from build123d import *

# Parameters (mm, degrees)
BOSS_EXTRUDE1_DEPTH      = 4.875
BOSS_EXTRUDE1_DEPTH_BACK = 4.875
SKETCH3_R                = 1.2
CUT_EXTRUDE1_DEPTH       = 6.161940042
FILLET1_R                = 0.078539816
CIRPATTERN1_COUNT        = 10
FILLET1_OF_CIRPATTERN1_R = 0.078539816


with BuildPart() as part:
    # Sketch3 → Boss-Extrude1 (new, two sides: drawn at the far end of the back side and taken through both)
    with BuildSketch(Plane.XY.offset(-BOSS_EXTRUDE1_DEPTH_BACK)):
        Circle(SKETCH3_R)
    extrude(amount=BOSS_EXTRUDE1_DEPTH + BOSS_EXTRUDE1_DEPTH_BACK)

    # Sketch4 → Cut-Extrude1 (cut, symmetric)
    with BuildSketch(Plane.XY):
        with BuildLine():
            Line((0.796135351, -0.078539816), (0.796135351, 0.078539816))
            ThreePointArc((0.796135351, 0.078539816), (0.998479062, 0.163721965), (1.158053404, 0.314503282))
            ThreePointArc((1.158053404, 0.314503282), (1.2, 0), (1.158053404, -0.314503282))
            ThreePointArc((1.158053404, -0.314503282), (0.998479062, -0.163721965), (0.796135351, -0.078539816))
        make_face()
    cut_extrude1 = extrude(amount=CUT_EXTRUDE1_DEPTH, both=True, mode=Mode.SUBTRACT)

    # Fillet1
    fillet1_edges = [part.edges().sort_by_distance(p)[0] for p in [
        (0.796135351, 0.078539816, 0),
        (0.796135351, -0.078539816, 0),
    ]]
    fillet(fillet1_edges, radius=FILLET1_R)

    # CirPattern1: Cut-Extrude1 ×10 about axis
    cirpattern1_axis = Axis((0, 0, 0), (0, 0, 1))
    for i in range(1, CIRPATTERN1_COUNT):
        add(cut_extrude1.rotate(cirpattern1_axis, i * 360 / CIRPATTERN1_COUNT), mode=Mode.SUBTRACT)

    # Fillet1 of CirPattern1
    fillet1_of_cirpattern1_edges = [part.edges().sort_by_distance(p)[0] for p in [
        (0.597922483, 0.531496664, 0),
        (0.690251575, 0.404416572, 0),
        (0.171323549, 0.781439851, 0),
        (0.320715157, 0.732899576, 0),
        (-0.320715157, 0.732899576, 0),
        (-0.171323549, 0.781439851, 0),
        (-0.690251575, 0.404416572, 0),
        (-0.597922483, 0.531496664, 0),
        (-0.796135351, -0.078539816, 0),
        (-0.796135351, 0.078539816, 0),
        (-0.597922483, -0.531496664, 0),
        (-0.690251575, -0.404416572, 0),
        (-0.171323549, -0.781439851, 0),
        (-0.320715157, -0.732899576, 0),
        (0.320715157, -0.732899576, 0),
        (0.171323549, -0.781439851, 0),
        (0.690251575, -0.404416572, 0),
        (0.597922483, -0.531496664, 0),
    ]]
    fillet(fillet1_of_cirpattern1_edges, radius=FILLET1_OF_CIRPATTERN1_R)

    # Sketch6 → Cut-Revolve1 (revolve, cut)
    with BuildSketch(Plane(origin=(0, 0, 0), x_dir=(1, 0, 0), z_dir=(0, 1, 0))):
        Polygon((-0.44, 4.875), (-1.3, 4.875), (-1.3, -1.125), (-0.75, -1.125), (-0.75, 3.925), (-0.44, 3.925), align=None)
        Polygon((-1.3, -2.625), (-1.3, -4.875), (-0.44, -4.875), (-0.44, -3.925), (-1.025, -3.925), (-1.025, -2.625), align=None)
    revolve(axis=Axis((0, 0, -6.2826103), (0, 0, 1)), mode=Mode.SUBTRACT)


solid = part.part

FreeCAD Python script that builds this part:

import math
import FreeCAD as App
import Part
import Sketcher
from FreeCAD import Vector


def edges_at(feature, points):
    """Names of the edges that pass closest to the given points."""
    edges = feature.Shape.Edges
    near = lambda p: min(range(len(edges)), key=lambda i: edges[i].distToShape(Part.Vertex(*p))[0])
    return sorted({f"Edge{near(p) + 1}" for p in points})

doc = App.newDocument("Part")
body = doc.addObject("PartDesign::Body", "Body")

# Sketch on XY plane
sketch1 = body.newObject("Sketcher::SketchObject", "Sketch")
sketch1.AttachmentSupport = (doc.getObject("XY_Plane"), [""])
sketch1.MapMode = "FlatFace"
sketch1.addGeometry(Part.Circle(Vector(0, 0, 0), Vector(0, 0, 1), 1.2), False)
sketch1.addConstraint([
    Sketcher.Constraint("Coincident", 0, 3, -1, 1),
    Sketcher.Constraint("Diameter", 0, 2.4),
])
pad1 = body.newObject("PartDesign::Pad", "Pad")
pad1.Profile = sketch1
pad1.Type = "TwoLengths"
pad1.Length = 4.875
pad1.Length2 = 4.875

# Sketch on XY plane
sketch2 = body.newObject("Sketcher::SketchObject", "Sketch001")
sketch2.AttachmentSupport = (doc.getObject("XY_Plane"), [""])
sketch2.MapMode = "FlatFace"
sketch2.addGeometry([
    Part.LineSegment(Vector(0.8, 0.08, 0), Vector(0.8, -0.08, 0)),
    Part.ArcOfCircle(Part.Circle(Vector(0.66, -0.68, 0), Vector(0, 0, 1), 0.62), math.radians(36), math.radians(77)),
    Part.ArcOfCircle(Part.Circle(Vector(0, 0, 0), Vector(0, 0, 1), 1.2), math.radians(-15), math.radians(15)),
    Part.ArcOfCircle(Part.Circle(Vector(0.66, 0.68, 0), Vector(0, 0, 1), 0.62), math.radians(-77), math.radians(-36)),
], False)
sketch2.addConstraint([
    Sketcher.Constraint("Coincident", 0, 2, 1, 2),
    Sketcher.Constraint("Coincident", 1, 1, 2, 1),
    Sketcher.Constraint("Coincident", 2, 2, 3, 2),
    Sketcher.Constraint("Coincident", 3, 1, 0, 1),
    Sketcher.Constraint("Vertical", 0),
    Sketcher.Constraint("Coincident", 2, 3, -1, 1),
    Sketcher.Constraint("Equal", 1, 3),
    Sketcher.Constraint("Symmetric", 1, 3, 3, 3, -1),
    Sketcher.Constraint("Radius", 2, 1.2),
    Sketcher.Constraint("Radius", 1, 0.615489),
    Sketcher.Constraint("DistanceY", 0, 2, 0, 1, 0.15708),
    Sketcher.Constraint("DistanceX", 0, 2, 1, 1, 0.361918),
    Sketcher.Constraint("DistanceY", 1, 1, 3, 3, 0.993811),
])
pocket1 = body.newObject("PartDesign::Pocket", "Pocket")
pocket1.Profile = sketch2
pocket1.Length = 12.32388
pocket1.Midplane = True
doc.recompute()

fillet = body.newObject("PartDesign::Fillet", "Fillet")
fillet.Base = (pocket1, edges_at(pocket1, [(0.796, 0.079, 0), (0.796, -0.079, 0)]))
fillet.Radius = 0.07854
doc.recompute()

polarpattern = body.newObject("PartDesign::PolarPattern", "PolarPattern")
polarpattern.Originals = [pocket1]
polarpattern.Axis = (doc.getObject("Z_Axis"), [""])
polarpattern.Angle = 360
polarpattern.Occurrences = 10
body.Tip = polarpattern
doc.recompute()

fillet2 = body.newObject("PartDesign::Fillet", "Fillet001")
fillet2.Base = (polarpattern, edges_at(polarpattern, [
    (0.598, 0.531, 0),
    (0.69, 0.404, 0),
    (0.171, 0.781, 0),
    (0.321, 0.733, 0),
    (-0.321, 0.733, 0),
    (-0.171, 0.781, 0),
    (-0.69, 0.404, 0),
    (-0.598, 0.531, 0),
    (-0.796, -0.079, 0),
    (-0.796, 0.079, 0),
    (-0.598, -0.531, 0),
    (-0.69, -0.404, 0),
    (-0.171, -0.781, 0),
    (-0.321, -0.733, 0),
    (0.321, -0.733, 0),
    (0.171, -0.781, 0),
    (0.69, -0.404, 0),
    (0.598, -0.531, 0),
]))
fillet2.Radius = 0.07854

# Sketch on XZ plane
sketch3 = body.newObject("Sketcher::SketchObject", "Sketch002")
sketch3.AttachmentSupport = (doc.getObject("XZ_Plane"), [""])
sketch3.MapMode = "FlatFace"
sketch3.addGeometry([
    Part.LineSegment(Vector(-0.44, -4.88, 0), Vector(-1.3, -4.88, 0)),  # 0
    Part.LineSegment(Vector(-1.3, -4.88, 0), Vector(-1.3, 1.12, 0)),  # 1
    Part.LineSegment(Vector(-1.3, 1.12, 0), Vector(-0.75, 1.12, 0)),  # 2
    Part.LineSegment(Vector(-0.75, 1.12, 0), Vector(-0.75, -3.92, 0)),  # 3
    Part.LineSegment(Vector(-0.75, -3.92, 0), Vector(-0.44, -3.92, 0)),  # 4
    Part.LineSegment(Vector(-0.44, -3.92, 0), Vector(-0.44, -4.88, 0)),  # 5
    Part.LineSegment(Vector(-1.3, 2.62, 0), Vector(-1.3, 4.88, 0)),  # 6
    Part.LineSegment(Vector(-1.3, 4.88, 0), Vector(-0.44, 4.88, 0)),  # 7
    Part.LineSegment(Vector(-0.44, 4.88, 0), Vector(-0.44, 3.92, 0)),  # 8
    Part.LineSegment(Vector(-0.44, 3.92, 0), Vector(-1.02, 3.92, 0)),  # 9
    Part.LineSegment(Vector(-1.02, 3.92, 0), Vector(-1.02, 2.62, 0)),  # 10
    Part.LineSegment(Vector(-1.02, 2.62, 0), Vector(-1.3, 2.62, 0)),  # 11
], False)
sketch3.addConstraint([
    Sketcher.Constraint("Coincident", 0, 2, 1, 1),
    Sketcher.Constraint("Coincident", 1, 2, 2, 1),
    Sketcher.Constraint("Coincident", 2, 2, 3, 1),
    Sketcher.Constraint("Coincident", 3, 2, 4, 1),
    Sketcher.Constraint("Coincident", 4, 2, 5, 1),
    Sketcher.Constraint("Coincident", 5, 2, 0, 1),
    Sketcher.Constraint("Coincident", 6, 2, 7, 1),
    Sketcher.Constraint("Coincident", 7, 2, 8, 1),
    Sketcher.Constraint("Coincident", 8, 2, 9, 1),
    Sketcher.Constraint("Coincident", 9, 2, 10, 1),
    Sketcher.Constraint("Coincident", 10, 2, 11, 1),
    Sketcher.Constraint("Coincident", 11, 2, 6, 1),
    Sketcher.Constraint("Horizontal", 0),
    Sketcher.Constraint("Vertical", 1),
    Sketcher.Constraint("Horizontal", 2),
    Sketcher.Constraint("Vertical", 3),
    Sketcher.Constraint("Horizontal", 4),
    Sketcher.Constraint("Vertical", 5),
    Sketcher.Constraint("Vertical", 6),
    Sketcher.Constraint("Horizontal", 7),
    Sketcher.Constraint("Vertical", 8),
    Sketcher.Constraint("Horizontal", 9),
    Sketcher.Constraint("Vertical", 10),
    Sketcher.Constraint("Horizontal", 11),
    Sketcher.Constraint("Symmetric", 0, 2, 6, 2, -1),
    Sketcher.Constraint("Symmetric", 4, 2, 8, 2, -1),
    Sketcher.Constraint("DistanceY", 1, 1, 1, 2, 6.0),
    Sketcher.Constraint("DistanceY", 10, 2, 10, 1, 1.3),
    Sketcher.Constraint("DistanceX", 0, 2, 0, 1, 0.86),
    Sketcher.Constraint("DistanceX", 2, 1, 2, 2, 0.55),
    Sketcher.Constraint("DistanceY", 3, 2, 3, 1, 5.05),
    Sketcher.Constraint("DistanceX", 0, 2, -1, 1, 1.3),
    Sketcher.Constraint("DistanceY", 3, 2, 6, 2, 8.8),
    Sketcher.Constraint("DistanceX", 9, 2, 9, 1, 0.585),
])
groove = body.newObject("PartDesign::Groove", "Groove")
groove.Profile = sketch3
groove.ReferenceAxis = (sketch3, ["V_Axis"])
groove.Angle = 360

doc.recompute()
